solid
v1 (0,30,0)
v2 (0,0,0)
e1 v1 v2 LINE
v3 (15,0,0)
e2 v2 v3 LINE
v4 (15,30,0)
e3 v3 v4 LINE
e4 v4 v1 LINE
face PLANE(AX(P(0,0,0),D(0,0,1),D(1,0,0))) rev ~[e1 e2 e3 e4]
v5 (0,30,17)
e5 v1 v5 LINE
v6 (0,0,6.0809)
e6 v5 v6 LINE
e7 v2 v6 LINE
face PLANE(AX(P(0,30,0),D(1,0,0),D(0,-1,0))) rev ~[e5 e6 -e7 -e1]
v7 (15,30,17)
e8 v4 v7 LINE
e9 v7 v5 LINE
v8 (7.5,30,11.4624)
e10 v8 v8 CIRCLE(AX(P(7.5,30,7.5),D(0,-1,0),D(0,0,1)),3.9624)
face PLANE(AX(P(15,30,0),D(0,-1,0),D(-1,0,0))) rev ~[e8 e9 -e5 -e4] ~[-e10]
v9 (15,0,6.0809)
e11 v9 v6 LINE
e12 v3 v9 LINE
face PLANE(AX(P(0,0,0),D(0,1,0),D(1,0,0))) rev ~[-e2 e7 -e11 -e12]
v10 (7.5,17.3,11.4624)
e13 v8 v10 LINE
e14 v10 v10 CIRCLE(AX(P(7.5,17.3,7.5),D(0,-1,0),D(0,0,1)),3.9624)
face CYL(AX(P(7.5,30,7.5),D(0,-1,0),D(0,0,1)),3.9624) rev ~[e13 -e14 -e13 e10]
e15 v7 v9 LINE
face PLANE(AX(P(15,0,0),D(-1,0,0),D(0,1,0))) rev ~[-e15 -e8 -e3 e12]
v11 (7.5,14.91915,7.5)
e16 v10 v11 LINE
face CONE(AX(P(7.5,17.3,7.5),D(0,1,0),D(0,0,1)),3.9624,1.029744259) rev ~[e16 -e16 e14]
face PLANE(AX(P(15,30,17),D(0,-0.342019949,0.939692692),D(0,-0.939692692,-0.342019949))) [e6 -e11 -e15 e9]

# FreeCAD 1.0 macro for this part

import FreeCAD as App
import Part
import Sketcher

V = App.Vector
Q = App.Units.Quantity

doc = App.newDocument("Part")
params = doc.addObject("Spreadsheet::Sheet", "Params")
for row, (alias, value) in enumerate([
    ("sketch1_width", "15 mm"),
    ("sketch1_height", "30 mm"),
    ("pad1_length", "17 mm"),
    ("sketch2_width", "30 mm"),
    ("hole_diameter", "7.9248 mm"),
    ("hole_depth", "12.7 mm"),
], start=1):
    params.set(f"A{row}", alias)
    params.set(f"B{row}", "=" + value)
    params.setAlias(f"B{row}", alias)

body = doc.addObject("PartDesign::Body", "Body")

sketch1 = body.newObject("Sketcher::SketchObject", "Sketch")
sketch1.AttachmentSupport = (doc.getObject("XY_Plane"), [""])
sketch1.MapMode = "FlatFace"
sketch1.addGeometry([
    Part.LineSegment(V(0, 30, 0), V(0, 0, 0)),
    Part.LineSegment(V(0, 0, 0), V(15, 0, 0)),
    Part.LineSegment(V(15, 0, 0), V(15, 30, 0)),
    Part.LineSegment(V(15, 30, 0), V(0, 30, 0)),
], False)
sketch1.addConstraint([
    Sketcher.Constraint("Coincident", 0, 2, 1, 1),
    Sketcher.Constraint("Coincident", 1, 2, 2, 1),
    Sketcher.Constraint("Coincident", 2, 2, 3, 1),
    Sketcher.Constraint("Coincident", 3, 2, 0, 1),
    Sketcher.Constraint("Vertical", 0),
    Sketcher.Constraint("Horizontal", 1),
    Sketcher.Constraint("Vertical", 2),
    Sketcher.Constraint("Horizontal", 3),
    Sketcher.Constraint("Coincident", 0, 2, -1, 1),
    Sketcher.Constraint("DistanceX", 1, 1, 1, 2, 15.0),
    Sketcher.Constraint("DistanceY", 0, 2, 0, 1, 30.0),
])
sketch1.setExpression("Constraints[9]", "Params.sketch1_width")
sketch1.setExpression("Constraints[10]", "Params.sketch1_height")
pad1 = body.newObject("PartDesign::Pad", "Pad")
pad1.Profile = sketch1
pad1.setExpression("Length", "Params.pad1_length")

sketch2 = body.newObject("Sketcher::SketchObject", "Sketch001")
sketch2.AttachmentSupport = (doc.getObject("YZ_Plane"), [""])
sketch2.MapMode = "FlatFace"
sketch2.AttachmentOffset = App.Placement(V(0, 0, 15), App.Rotation())
sketch2.addGeometry([
    Part.LineSegment(V(30, 17, 0), V(0, 17, 0)),
    Part.LineSegment(V(0, 17, 0), V(0, 6.0809, 0)),
    Part.LineSegment(V(0, 6.0809, 0), V(30, 17, 0)),
], False)
sketch2.addConstraint([
    Sketcher.Constraint("Coincident", 0, 2, 1, 1),
    Sketcher.Constraint("Coincident", 1, 2, 2, 1),
    Sketcher.Constraint("Coincident", 2, 2, 0, 1),
    Sketcher.Constraint("Horizontal", 0),
    Sketcher.Constraint("Vertical", 1),
    Sketcher.Constraint("PointOnObject", 0, 2, -2),
    Sketcher.Constraint("DistanceX", 0, 2, 0, 1, 30.0),
    Sketcher.Constraint("Angle", 2, Q("20 deg")),
    Sketcher.Constraint("DistanceY", -1, 1, 0, 2, 17.0),
])
sketch2.setExpression("Constraints[6]", "Params.sketch2_width")
pocket1 = body.newObject("PartDesign::Pocket", "Pocket")
pocket1.Profile = sketch2
pocket1.Type = "ThroughAll"

sketch3 = body.newObject("Sketcher::SketchObject", "Sketch002")
sketch3.AttachmentSupport = (doc.getObject("XZ_Plane"), [""])
sketch3.MapMode = "FlatFace"
sketch3.AttachmentOffset = App.Placement(V(0, 0, -30), App.Rotation())
sketch3.addGeometry(Part.Circle(V(7.5, 7.5, 0), V(0, 0, 1), 3.9624), False)
sketch3.addConstraint([
    Sketcher.Constraint("Diameter", 0, 7.9248),
    Sketcher.Constraint("DistanceX", -1, 1, 0, 3, 7.5),
    Sketcher.Constraint("DistanceY", -1, 1, 0, 3, 7.5),
])
doc.recompute()
hole = body.newObject("PartDesign::Hole", "Hole")
hole.Profile = sketch3
hole.ThreadType = "None"
hole.setExpression("Diameter", "Params.hole_diameter")
hole.DepthType = "Dimension"
hole.setExpression("Depth", "Params.hole_depth")
hole.DrillPoint = "Angled"
hole.DrillPointAngle = 118
hole.Reversed = True

doc.recompute()
